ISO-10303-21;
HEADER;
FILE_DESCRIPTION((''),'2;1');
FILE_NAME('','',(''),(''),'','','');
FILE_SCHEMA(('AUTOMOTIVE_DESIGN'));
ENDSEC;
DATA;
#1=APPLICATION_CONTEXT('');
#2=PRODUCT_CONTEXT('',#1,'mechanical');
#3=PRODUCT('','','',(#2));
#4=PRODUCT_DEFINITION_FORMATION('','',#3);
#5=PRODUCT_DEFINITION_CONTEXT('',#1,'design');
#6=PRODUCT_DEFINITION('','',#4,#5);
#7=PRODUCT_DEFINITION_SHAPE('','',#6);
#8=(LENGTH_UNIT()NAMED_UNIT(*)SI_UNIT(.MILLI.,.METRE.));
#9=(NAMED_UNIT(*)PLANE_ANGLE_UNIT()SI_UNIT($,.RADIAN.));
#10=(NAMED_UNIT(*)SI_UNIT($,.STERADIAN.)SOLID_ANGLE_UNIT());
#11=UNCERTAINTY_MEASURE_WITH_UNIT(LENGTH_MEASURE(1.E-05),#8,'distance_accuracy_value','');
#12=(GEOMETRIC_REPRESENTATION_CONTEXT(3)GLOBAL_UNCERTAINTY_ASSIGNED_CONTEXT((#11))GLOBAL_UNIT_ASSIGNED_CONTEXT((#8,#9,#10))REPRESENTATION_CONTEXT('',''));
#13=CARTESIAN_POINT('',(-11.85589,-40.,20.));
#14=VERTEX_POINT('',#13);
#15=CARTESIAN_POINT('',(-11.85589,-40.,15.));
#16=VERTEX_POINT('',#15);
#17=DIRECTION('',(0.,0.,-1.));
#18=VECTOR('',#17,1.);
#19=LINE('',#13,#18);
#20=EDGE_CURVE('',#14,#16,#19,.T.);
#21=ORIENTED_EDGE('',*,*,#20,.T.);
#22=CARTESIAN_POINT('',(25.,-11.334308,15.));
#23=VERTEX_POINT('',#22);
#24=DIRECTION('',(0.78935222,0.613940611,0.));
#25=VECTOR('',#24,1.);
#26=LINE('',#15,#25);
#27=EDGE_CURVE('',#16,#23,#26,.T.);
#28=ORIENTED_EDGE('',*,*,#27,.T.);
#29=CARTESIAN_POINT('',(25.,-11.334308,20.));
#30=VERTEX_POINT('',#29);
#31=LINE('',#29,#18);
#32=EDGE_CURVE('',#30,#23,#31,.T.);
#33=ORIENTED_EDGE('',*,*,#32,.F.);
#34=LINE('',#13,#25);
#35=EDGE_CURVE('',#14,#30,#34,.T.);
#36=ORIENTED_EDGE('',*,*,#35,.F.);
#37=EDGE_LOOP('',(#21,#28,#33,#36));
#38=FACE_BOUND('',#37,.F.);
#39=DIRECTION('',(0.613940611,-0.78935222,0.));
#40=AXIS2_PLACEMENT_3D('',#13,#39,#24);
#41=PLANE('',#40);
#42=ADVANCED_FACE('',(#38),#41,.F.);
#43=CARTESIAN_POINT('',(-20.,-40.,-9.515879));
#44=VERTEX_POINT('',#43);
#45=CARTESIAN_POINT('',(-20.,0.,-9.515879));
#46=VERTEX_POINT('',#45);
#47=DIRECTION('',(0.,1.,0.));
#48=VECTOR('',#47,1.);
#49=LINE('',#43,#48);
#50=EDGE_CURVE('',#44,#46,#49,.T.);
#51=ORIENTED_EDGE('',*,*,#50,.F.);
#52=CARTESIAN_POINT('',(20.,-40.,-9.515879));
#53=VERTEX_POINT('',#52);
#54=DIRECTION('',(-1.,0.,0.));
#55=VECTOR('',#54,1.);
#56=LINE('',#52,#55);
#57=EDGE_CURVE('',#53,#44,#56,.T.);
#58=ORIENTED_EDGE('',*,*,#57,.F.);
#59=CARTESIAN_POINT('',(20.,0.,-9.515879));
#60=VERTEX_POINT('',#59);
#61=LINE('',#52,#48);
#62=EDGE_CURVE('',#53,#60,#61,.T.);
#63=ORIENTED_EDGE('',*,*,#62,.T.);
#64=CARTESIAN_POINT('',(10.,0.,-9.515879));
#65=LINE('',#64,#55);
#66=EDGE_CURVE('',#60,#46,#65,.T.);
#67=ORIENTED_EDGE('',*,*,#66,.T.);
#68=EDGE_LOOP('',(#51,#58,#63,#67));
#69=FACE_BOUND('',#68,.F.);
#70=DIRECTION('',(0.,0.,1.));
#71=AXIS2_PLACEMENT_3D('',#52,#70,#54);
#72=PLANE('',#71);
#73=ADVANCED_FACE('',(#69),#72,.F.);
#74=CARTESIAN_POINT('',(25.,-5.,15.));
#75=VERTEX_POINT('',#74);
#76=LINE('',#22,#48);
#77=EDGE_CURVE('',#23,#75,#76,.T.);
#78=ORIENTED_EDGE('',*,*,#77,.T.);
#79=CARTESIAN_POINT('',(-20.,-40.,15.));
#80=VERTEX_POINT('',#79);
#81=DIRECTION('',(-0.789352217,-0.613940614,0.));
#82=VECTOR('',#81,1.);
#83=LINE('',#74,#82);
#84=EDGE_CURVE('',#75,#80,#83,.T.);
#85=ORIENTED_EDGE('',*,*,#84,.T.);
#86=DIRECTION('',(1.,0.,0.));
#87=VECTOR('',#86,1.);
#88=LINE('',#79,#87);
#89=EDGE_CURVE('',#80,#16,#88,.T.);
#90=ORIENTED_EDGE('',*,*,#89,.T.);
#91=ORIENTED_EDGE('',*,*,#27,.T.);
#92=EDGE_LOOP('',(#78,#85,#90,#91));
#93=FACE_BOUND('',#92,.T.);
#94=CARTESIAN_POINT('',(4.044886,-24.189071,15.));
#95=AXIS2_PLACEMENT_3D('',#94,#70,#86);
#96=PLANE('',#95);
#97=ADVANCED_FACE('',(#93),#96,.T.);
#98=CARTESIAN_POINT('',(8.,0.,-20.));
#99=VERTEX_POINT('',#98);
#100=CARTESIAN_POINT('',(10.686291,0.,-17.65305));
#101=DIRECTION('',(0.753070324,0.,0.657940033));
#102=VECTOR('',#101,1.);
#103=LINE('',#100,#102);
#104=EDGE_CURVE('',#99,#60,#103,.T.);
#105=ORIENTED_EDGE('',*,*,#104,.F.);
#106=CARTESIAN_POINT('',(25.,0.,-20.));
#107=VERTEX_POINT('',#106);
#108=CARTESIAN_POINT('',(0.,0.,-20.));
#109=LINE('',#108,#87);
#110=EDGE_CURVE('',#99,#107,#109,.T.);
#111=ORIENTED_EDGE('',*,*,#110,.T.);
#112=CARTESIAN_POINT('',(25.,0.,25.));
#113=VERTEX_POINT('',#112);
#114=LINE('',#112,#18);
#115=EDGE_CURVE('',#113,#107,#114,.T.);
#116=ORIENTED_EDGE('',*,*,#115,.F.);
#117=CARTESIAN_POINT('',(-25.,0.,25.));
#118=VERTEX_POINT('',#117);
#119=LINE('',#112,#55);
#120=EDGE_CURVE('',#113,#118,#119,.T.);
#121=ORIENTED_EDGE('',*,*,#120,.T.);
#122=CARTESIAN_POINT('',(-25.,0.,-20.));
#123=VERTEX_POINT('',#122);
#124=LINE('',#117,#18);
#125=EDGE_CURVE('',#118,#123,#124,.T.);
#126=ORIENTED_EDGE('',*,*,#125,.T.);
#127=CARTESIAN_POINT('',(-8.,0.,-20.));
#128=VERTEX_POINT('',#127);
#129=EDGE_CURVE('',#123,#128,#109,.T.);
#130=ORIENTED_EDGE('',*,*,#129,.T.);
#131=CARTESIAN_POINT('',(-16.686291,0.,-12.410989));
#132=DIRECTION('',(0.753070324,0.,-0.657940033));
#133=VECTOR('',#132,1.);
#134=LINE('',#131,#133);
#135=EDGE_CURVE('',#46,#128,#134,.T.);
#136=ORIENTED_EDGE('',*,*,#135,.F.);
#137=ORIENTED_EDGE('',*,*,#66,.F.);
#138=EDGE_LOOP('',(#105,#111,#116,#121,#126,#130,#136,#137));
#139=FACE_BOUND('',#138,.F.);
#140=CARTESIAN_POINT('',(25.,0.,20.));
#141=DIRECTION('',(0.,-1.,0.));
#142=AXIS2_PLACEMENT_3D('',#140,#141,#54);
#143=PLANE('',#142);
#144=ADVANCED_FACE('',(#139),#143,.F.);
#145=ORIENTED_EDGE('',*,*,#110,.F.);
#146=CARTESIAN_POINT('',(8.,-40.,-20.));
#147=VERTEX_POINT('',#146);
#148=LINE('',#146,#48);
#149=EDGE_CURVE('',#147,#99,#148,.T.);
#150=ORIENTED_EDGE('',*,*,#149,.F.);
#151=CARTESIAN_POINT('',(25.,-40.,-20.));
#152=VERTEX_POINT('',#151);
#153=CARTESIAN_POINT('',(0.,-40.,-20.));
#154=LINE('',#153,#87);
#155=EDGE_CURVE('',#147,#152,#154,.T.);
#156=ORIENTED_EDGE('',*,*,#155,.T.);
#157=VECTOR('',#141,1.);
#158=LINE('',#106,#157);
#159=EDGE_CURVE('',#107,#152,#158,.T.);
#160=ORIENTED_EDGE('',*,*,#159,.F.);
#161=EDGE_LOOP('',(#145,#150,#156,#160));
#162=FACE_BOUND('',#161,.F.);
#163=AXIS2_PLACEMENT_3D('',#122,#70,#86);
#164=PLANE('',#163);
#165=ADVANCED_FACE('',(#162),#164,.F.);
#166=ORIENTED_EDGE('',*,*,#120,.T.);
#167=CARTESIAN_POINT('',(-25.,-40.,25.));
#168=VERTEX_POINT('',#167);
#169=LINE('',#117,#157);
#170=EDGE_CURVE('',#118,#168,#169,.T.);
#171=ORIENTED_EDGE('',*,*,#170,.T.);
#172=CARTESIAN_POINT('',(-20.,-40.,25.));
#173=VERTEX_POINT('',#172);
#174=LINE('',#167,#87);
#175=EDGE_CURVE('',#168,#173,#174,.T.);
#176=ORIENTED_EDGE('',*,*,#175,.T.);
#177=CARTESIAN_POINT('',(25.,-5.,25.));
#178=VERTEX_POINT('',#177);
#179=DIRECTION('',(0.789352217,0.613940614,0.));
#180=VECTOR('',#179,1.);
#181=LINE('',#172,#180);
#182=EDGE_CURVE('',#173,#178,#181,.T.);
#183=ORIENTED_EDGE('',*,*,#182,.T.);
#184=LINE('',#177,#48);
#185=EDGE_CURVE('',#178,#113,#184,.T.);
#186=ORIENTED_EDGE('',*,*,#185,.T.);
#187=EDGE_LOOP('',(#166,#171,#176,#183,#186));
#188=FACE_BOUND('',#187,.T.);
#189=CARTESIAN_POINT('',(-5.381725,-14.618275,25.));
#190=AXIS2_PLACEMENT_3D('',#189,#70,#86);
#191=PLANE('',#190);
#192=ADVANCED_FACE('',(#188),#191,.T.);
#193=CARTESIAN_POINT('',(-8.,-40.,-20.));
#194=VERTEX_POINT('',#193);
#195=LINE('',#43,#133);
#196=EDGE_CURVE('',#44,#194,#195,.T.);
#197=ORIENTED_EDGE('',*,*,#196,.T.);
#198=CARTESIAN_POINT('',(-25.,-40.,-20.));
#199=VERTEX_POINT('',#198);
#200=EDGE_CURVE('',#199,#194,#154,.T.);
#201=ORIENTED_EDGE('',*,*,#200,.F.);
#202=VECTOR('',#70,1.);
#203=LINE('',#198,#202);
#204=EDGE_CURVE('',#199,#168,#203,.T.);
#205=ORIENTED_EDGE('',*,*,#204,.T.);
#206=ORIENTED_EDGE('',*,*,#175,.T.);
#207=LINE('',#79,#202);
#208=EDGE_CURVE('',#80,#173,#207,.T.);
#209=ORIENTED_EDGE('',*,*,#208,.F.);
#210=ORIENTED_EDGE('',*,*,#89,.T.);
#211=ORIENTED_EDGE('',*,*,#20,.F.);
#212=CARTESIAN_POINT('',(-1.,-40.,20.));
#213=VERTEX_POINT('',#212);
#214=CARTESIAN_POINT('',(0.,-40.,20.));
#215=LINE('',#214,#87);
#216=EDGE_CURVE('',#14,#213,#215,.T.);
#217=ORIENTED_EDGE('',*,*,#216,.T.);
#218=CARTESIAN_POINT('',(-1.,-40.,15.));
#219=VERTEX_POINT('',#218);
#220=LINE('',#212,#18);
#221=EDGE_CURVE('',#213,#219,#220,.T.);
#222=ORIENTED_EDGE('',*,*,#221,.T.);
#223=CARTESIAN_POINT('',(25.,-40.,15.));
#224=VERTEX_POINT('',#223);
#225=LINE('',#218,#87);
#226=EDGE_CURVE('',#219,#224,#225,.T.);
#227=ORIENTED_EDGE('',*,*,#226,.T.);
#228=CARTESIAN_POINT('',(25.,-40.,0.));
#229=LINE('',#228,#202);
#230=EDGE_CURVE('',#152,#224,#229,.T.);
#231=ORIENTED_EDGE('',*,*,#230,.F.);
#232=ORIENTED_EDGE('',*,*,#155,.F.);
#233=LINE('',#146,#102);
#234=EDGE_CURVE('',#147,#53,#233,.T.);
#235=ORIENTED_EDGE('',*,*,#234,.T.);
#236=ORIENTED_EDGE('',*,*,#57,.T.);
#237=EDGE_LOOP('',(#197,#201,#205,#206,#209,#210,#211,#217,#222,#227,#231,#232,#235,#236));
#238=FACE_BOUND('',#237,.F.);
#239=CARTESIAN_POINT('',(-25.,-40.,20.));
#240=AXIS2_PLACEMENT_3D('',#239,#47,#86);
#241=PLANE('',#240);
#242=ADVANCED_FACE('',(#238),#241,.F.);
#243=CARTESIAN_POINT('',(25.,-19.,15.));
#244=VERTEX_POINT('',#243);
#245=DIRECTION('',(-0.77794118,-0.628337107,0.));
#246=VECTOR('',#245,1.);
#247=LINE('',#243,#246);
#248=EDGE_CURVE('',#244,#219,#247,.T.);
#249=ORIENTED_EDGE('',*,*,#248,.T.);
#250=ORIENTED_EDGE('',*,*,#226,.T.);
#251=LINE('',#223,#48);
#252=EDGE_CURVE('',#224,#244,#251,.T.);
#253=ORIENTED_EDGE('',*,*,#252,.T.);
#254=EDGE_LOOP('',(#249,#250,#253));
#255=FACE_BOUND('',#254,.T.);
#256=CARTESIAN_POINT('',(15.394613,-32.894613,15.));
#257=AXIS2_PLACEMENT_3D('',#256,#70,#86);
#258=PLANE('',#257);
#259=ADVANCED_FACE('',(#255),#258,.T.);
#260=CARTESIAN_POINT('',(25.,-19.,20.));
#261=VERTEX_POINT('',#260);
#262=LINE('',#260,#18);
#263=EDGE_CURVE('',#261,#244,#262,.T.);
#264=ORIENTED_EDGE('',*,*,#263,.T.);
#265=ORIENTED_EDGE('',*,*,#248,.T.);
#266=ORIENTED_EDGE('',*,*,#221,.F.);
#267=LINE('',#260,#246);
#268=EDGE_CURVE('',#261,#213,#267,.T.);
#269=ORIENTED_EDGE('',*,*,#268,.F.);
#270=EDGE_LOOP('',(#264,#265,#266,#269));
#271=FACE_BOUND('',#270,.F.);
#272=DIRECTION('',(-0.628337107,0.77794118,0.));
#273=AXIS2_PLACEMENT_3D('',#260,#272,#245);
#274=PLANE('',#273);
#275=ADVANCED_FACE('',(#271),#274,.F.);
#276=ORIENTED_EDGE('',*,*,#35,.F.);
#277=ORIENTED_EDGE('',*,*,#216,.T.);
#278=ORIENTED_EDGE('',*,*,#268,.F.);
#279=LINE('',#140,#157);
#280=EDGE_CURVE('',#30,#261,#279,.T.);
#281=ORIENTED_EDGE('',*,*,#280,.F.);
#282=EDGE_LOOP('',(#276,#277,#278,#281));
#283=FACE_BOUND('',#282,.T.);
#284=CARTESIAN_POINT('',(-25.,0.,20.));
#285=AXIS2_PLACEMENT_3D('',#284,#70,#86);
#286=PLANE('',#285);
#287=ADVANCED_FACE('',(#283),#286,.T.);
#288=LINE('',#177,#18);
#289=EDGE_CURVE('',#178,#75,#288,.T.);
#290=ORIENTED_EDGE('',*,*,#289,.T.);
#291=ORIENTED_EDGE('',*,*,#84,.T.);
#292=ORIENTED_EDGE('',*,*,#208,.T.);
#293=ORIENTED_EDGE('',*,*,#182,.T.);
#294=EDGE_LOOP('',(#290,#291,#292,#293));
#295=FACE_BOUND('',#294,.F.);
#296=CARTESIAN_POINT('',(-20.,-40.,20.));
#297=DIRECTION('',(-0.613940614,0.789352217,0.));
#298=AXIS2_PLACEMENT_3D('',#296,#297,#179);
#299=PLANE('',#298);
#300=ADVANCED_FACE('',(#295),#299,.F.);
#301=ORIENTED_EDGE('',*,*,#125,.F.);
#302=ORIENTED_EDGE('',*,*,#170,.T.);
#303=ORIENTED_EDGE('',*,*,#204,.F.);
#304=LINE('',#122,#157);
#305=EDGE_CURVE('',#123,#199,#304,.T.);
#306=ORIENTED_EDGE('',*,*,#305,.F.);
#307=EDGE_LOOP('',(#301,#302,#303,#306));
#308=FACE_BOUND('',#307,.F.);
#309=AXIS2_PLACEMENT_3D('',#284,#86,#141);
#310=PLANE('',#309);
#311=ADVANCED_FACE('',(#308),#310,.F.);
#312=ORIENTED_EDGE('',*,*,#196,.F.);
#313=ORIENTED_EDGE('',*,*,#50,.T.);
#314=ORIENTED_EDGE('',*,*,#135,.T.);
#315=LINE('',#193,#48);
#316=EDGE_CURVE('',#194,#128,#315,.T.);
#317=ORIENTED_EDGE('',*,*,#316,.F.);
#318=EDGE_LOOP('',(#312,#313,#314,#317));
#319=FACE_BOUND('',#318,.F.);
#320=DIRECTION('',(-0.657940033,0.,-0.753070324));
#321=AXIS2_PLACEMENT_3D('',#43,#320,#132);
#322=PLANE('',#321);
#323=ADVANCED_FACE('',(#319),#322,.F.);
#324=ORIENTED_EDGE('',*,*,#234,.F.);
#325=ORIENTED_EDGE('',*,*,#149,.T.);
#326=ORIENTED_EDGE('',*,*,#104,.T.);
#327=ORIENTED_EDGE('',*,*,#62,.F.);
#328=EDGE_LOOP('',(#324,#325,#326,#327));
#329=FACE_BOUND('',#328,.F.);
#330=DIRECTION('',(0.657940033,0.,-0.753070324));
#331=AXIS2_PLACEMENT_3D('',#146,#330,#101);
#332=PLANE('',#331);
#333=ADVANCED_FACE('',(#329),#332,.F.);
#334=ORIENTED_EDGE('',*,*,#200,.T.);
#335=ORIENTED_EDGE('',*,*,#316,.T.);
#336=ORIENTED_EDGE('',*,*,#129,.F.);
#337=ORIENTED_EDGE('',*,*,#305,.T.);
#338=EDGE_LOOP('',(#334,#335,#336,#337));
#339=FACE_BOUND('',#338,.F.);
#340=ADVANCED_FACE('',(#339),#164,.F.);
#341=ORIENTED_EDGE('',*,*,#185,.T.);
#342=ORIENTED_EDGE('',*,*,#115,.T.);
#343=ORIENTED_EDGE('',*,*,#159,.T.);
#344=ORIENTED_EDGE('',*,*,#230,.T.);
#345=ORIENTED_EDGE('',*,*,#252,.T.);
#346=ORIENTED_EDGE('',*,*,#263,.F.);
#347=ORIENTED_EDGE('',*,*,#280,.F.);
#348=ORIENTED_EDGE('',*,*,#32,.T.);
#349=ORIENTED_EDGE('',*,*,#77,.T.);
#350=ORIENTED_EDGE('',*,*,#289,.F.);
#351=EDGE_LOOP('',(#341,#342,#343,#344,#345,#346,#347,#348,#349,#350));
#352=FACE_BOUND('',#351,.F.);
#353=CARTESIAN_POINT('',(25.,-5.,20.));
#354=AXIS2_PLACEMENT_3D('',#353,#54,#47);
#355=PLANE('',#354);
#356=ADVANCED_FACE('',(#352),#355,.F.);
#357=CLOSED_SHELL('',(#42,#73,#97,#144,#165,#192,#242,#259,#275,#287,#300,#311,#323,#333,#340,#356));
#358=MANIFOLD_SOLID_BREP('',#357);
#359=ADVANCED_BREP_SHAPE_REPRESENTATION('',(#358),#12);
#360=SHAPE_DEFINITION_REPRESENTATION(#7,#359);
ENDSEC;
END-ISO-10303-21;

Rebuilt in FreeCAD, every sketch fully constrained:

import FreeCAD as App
import Part
import Sketcher

V = App.Vector
Q = App.Units.Quantity

doc = App.newDocument("Part")
body = doc.addObject("PartDesign::Body", "Body")

# Sketch on XZ plane
sketch1 = body.newObject("Sketcher::SketchObject", "Sketch")
sketch1.AttachmentSupport = (doc.getObject("XZ_Plane"), [""])
sketch1.MapMode = "FlatFace"
sketch1.addGeometry([
    Part.LineSegment(V(-25, 20, 0), V(-25, -20, 0)),
    Part.LineSegment(V(-25, -20, 0), V(25, -20, 0)),
    Part.LineSegment(V(25, -20, 0), V(25, 20, 0)),
    Part.LineSegment(V(25, 20, 0), V(-25, 20, 0)),
], False)
sketch1.addConstraint([
    Sketcher.Constraint("Coincident", 0, 2, 1, 1),
    Sketcher.Constraint("Coincident", 1, 2, 2, 1),
    Sketcher.Constraint("Coincident", 2, 2, 3, 1),
    Sketcher.Constraint("Coincident", 3, 2, 0, 1),
    Sketcher.Constraint("Vertical", 0),
    Sketcher.Constraint("Horizontal", 1),
    Sketcher.Constraint("Vertical", 2),
    Sketcher.Constraint("Horizontal", 3),
    Sketcher.Constraint("Symmetric", 0, 2, 2, 2, -1, 1),
    Sketcher.Constraint("DistanceX", 1, 1, 1, 2, Q("50 mm")),
    Sketcher.Constraint("DistanceY", 0, 2, 0, 1, Q("40 mm")),
])
pad1 = body.newObject("PartDesign::Pad", "Pad")
pad1.Profile = sketch1
pad1.Length = 40

# Sketch on XZ plane
sketch2 = body.newObject("Sketcher::SketchObject", "Sketch001")
sketch2.AttachmentSupport = (doc.getObject("XZ_Plane"), [""])
sketch2.MapMode = "FlatFace"
sketch2.AttachmentOffset = App.Placement(V(0, 0, 40), App.Rotation())
sketch2.addGeometry([
    Part.LineSegment(V(-20, -10, 0), V(-8, -20, 0)),
    Part.LineSegment(V(-8, -20, 0), V(8, -20, 0)),
    Part.LineSegment(V(8, -20, 0), V(20, -10, 0)),
    Part.LineSegment(V(20, -10, 0), V(-20, -10, 0)),
], False)
sketch2.addConstraint([
    Sketcher.Constraint("Coincident", 0, 2, 1, 1),
    Sketcher.Constraint("Coincident", 1, 2, 2, 1),
    Sketcher.Constraint("Coincident", 2, 2, 3, 1),
    Sketcher.Constraint("Coincident", 3, 2, 0, 1),
    Sketcher.Constraint("Horizontal", 1),
    Sketcher.Constraint("Horizontal", 3),
    Sketcher.Constraint("Equal", 0, 2),
    Sketcher.Constraint("DistanceX", 1, 1, 1, 2, Q("16 mm")),
    Sketcher.Constraint("DistanceX", 3, 2, 3, 1, Q("40 mm")),
    Sketcher.Constraint("DistanceX", 0, 2, -1, 1, Q("8 mm")),
    Sketcher.Constraint("DistanceY", 0, 2, -1, 1, Q("20 mm")),
    Sketcher.Constraint("DistanceY", 2, 2, -1, 1, Q("9.515879 mm")),
])
pocket1 = body.newObject("PartDesign::Pocket", "Pocket")
pocket1.Profile = sketch2
pocket1.Type = "ThroughAll"

# Sketch on XY plane
sketch3 = body.newObject("Sketcher::SketchObject", "Sketch002")
sketch3.AttachmentSupport = (doc.getObject("XY_Plane"), [""])
sketch3.MapMode = "FlatFace"
sketch3.AttachmentOffset = App.Placement(V(0, 0, 20), App.Rotation())
sketch3.addGeometry([
    Part.LineSegment(V(-25, 0, 0), V(-25, -40, 0)),  # 0
    Part.LineSegment(V(-25, -40, 0), V(-20, -40, 0)),  # 1
    Part.LineSegment(V(-20, -40, 0), V(25, -5, 0)),  # 2
    Part.LineSegment(V(25, -5, 0), V(25, 0, 0)),  # 3
    Part.LineSegment(V(25, 0, 0), V(-25, 0, 0)),  # 4
], False)
sketch3.addConstraint([
    Sketcher.Constraint("Coincident", 0, 2, 1, 1),
    Sketcher.Constraint("Coincident", 1, 2, 2, 1),
    Sketcher.Constraint("Coincident", 2, 2, 3, 1),
    Sketcher.Constraint("Coincident", 3, 2, 4, 1),
    Sketcher.Constraint("Coincident", 4, 2, 0, 1),
    Sketcher.Constraint("Vertical", 0),
    Sketcher.Constraint("Horizontal", 1),
    Sketcher.Constraint("Vertical", 3),
    Sketcher.Constraint("Horizontal", 4),
    Sketcher.Constraint("Symmetric", 3, 2, 4, 2, -1, 1),
    Sketcher.Constraint("Equal", 1, 3),
    Sketcher.Constraint("DistanceX", 1, 1, 1, 2, Q("5 mm")),
    Sketcher.Constraint("DistanceX", 4, 2, 4, 1, Q("50 mm")),
    Sketcher.Constraint("DistanceY", 0, 2, 0, 1, Q("40 mm")),
])
pad2 = body.newObject("PartDesign::Pad", "Pad001")
pad2.Profile = sketch3
pad2.Length = 5

# Sketch on XY plane
sketch4 = body.newObject("Sketcher::SketchObject", "Sketch003")
sketch4.AttachmentSupport = (doc.getObject("XY_Plane"), [""])
sketch4.MapMode = "FlatFace"
sketch4.AttachmentOffset = App.Placement(V(0, 0, 20), App.Rotation())
sketch4.addGeometry([
    Part.LineSegment(V(25, -5, 0), V(-20, -40, 0)),
    Part.LineSegment(V(-20, -40, 0), V(-12, -40, 0)),
    Part.LineSegment(V(-12, -40, 0), V(25, -11, 0)),
    Part.LineSegment(V(25, -11, 0), V(25, -5, 0)),
], False)
sketch4.addConstraint([
    Sketcher.Constraint("Coincident", 0, 2, 1, 1),
    Sketcher.Constraint("Coincident", 1, 2, 2, 1),
    Sketcher.Constraint("Coincident", 2, 2, 3, 1),
    Sketcher.Constraint("Coincident", 3, 2, 0, 1),
    Sketcher.Constraint("Horizontal", 1),
    Sketcher.Constraint("Vertical", 3),
    Sketcher.Constraint("Parallel", 0, 2),
    Sketcher.Constraint("DistanceX", 0, 2, -1, 1, Q("20 mm")),
    Sketcher.Constraint("DistanceY", 0, 2, -1, 1, Q("40 mm")),
    Sketcher.Constraint("DistanceX", -1, 1, 2, 2, Q("25 mm")),
    Sketcher.Constraint("DistanceY", 3, 2, -1, 1, Q("5 mm")),
    Sketcher.Constraint("DistanceX", 1, 1, 1, 2, Q("8.14411 mm")),
])
pocket2 = body.newObject("PartDesign::Pocket", "Pocket001")
pocket2.Profile = sketch4
pocket2.Length = 5

# Sketch on XY plane
sketch5 = body.newObject("Sketcher::SketchObject", "Sketch004")
sketch5.AttachmentSupport = (doc.getObject("XY_Plane"), [""])
sketch5.MapMode = "FlatFace"
sketch5.AttachmentOffset = App.Placement(V(0, 0, 20), App.Rotation())
sketch5.addGeometry([
    Part.LineSegment(V(25, -19, 0), V(-1, -40, 0)),
    Part.LineSegment(V(-1, -40, 0), V(25, -40, 0)),
    Part.LineSegment(V(25, -40, 0), V(25, -19, 0)),
], False)
sketch5.addConstraint([
    Sketcher.Constraint("Coincident", 0, 2, 1, 1),
    Sketcher.Constraint("Coincident", 1, 2, 2, 1),
    Sketcher.Constraint("Coincident", 2, 2, 0, 1),
    Sketcher.Constraint("Horizontal", 1),
    Sketcher.Constraint("Vertical", 2),
    Sketcher.Constraint("DistanceX", 1, 1, 1, 2, Q("26 mm")),
    Sketcher.Constraint("DistanceY", 2, 1, 2, 2, Q("21 mm")),
    Sketcher.Constraint("DistanceX", 0, 2, -1, 1, Q("1 mm")),
    Sketcher.Constraint("DistanceY", 0, 2, -1, 1, Q("40 mm")),
])
pocket3 = body.newObject("PartDesign::Pocket", "Pocket002")
pocket3.Profile = sketch5
pocket3.Length = 5

doc.recompute()
